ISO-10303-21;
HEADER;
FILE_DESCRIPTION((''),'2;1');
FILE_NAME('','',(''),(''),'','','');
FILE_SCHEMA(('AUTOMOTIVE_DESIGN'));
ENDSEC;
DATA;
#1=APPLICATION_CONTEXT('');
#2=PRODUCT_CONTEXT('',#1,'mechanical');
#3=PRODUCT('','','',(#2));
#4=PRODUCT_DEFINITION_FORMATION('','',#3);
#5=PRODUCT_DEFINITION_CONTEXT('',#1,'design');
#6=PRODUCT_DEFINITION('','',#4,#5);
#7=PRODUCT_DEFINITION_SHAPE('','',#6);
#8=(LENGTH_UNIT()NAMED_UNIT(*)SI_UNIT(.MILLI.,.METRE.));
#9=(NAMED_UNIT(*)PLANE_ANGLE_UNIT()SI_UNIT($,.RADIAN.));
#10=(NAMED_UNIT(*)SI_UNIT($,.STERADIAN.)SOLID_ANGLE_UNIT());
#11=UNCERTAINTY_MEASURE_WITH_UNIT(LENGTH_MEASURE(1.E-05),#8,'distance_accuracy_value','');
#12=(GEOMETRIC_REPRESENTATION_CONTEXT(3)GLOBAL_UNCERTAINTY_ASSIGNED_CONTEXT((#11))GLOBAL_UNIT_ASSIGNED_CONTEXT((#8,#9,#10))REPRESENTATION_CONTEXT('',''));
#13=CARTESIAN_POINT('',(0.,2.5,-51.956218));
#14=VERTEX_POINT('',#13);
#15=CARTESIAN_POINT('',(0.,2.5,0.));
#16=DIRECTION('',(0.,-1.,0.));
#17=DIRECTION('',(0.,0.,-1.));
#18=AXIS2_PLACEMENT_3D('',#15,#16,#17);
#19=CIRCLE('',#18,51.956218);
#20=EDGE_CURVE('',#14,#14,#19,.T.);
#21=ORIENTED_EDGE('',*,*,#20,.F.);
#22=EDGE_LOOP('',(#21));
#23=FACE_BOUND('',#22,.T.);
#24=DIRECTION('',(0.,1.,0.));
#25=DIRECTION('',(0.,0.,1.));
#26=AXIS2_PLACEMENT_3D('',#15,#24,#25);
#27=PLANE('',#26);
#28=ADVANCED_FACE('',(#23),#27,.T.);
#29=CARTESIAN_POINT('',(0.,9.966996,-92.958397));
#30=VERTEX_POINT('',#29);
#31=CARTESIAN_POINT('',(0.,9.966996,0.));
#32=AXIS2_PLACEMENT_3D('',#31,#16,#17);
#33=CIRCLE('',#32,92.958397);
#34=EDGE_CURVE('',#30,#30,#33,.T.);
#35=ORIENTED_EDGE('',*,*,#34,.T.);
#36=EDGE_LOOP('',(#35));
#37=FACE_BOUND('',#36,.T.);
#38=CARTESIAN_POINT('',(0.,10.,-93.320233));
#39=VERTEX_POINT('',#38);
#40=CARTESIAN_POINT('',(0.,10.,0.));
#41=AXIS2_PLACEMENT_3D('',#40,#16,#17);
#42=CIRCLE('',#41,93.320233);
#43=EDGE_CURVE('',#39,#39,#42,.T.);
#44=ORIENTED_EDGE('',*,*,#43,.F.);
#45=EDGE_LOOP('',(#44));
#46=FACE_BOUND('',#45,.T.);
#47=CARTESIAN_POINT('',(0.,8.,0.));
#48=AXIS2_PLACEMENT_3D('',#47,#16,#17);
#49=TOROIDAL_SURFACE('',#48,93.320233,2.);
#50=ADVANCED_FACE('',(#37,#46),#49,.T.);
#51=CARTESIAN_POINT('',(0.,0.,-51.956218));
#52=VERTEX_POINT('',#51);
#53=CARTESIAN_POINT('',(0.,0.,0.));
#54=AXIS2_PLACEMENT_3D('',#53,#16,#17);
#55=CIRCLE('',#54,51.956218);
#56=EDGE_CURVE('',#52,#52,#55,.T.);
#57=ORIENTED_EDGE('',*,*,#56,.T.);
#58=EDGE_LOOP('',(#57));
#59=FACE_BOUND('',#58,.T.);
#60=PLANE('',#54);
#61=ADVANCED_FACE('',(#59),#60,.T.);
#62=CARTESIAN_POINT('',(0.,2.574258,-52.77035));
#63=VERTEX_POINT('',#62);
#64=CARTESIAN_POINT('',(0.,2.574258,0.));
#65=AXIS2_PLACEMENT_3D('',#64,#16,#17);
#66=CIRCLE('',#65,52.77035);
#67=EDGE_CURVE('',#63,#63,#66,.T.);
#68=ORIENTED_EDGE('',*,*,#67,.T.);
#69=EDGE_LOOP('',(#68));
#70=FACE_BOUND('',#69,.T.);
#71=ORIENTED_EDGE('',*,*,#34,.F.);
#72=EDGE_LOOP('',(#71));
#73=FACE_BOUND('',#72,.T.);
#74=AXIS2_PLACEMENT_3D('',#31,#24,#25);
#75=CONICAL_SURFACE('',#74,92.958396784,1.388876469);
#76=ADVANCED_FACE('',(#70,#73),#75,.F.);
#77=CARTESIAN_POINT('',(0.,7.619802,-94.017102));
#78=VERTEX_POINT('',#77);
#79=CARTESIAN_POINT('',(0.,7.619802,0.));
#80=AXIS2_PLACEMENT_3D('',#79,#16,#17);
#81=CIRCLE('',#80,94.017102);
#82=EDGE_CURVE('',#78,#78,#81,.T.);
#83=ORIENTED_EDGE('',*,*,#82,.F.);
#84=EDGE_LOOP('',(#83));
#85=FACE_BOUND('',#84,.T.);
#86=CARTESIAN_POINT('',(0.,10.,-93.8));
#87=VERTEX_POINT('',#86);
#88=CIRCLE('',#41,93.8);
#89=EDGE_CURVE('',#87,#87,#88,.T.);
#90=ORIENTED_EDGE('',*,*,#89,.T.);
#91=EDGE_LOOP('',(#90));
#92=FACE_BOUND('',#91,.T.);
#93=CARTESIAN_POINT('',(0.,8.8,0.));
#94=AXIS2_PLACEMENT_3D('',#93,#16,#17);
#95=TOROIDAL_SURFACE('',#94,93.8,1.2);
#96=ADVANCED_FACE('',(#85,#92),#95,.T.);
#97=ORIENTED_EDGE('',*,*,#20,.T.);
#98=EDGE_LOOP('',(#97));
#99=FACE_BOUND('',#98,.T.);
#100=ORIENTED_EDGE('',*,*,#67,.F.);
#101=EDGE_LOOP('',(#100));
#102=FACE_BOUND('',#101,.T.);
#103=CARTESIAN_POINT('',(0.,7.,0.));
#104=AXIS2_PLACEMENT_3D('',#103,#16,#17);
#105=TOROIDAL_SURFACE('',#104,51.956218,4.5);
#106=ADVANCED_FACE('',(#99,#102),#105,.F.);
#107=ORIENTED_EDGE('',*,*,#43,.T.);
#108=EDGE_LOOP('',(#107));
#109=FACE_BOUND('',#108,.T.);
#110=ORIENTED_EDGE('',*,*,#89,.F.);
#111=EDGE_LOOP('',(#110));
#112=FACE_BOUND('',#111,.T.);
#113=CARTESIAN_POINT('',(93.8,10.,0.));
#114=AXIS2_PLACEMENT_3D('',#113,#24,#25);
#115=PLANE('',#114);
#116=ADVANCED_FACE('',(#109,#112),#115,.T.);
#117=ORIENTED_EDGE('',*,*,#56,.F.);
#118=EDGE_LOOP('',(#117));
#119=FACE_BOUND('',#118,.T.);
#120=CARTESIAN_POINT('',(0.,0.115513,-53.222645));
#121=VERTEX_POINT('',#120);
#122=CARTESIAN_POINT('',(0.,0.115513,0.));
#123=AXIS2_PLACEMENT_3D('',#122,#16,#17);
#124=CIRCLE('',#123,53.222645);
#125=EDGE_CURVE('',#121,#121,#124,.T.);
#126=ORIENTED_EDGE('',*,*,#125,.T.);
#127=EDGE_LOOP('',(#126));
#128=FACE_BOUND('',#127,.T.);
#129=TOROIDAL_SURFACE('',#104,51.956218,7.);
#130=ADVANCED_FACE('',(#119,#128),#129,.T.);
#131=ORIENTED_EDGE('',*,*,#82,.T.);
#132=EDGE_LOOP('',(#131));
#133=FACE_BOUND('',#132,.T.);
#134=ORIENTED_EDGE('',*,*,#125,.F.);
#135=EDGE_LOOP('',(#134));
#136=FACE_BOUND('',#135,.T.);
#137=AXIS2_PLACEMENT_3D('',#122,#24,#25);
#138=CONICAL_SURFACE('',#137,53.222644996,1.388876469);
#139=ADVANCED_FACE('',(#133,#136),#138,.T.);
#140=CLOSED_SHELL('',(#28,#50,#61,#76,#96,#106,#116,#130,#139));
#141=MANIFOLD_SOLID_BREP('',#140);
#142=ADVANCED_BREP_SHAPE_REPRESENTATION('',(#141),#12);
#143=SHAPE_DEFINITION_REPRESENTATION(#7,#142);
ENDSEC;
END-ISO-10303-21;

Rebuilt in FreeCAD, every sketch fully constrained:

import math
import FreeCAD as App
import Part
import Sketcher

V = App.Vector
Q = App.Units.Quantity

doc = App.newDocument("Part")
body = doc.addObject("PartDesign::Body", "Body")

# Sketch on XY plane
sketch1 = body.newObject("Sketcher::SketchObject", "Sketch")
sketch1.AttachmentSupport = (doc.getObject("XY_Plane"), [""])
sketch1.MapMode = "FlatFace"
sketch1.addGeometry([
    Part.LineSegment(V(0, 0, 0), V(51.96, 0, 0)),  # 0
    Part.ArcOfCircle(Part.Circle(V(51.96, 7, 0), V(0, 0, 1), 7), math.radians(-90), math.radians(-79.58)),  # 1
    Part.LineSegment(V(53.22, 0.12, 0), V(94.02, 7.62, 0)),  # 2
    Part.ArcOfCircle(Part.Circle(V(93.8, 8.8, 0), V(0, 0, 1), 1.2), math.radians(-80), math.radians(90)),  # 3
    Part.LineSegment(V(93.8, 10, 0), V(93.32, 10, 0)),  # 4
    Part.ArcOfCircle(Part.Circle(V(93.32, 8, 0), V(0, 0, 1), 2), math.radians(90), math.radians(100.42)),  # 5
    Part.LineSegment(V(92.96, 9.97, 0), V(52.77, 2.57, 0)),  # 6
    Part.ArcOfCircle(Part.Circle(V(51.96, 7, 0), V(0, 0, 1), 4.5), math.radians(-90), math.radians(-79.58)),  # 7
    Part.LineSegment(V(51.96, 2.5, 0), V(0, 2.5, 0)),  # 8
    Part.LineSegment(V(0, 2.5, 0), V(0, 0, 0)),  # 9
], False)
sketch1.addConstraint([
    Sketcher.Constraint("Tangent", 0, 2, 1, 1),
    Sketcher.Constraint("Tangent", 1, 2, 2, 1),
    Sketcher.Constraint("Tangent", 2, 2, 3, 1),
    Sketcher.Constraint("Tangent", 3, 2, 4, 1),
    Sketcher.Constraint("Tangent", 4, 2, 5, 1),
    Sketcher.Constraint("Tangent", 5, 2, 6, 1),
    Sketcher.Constraint("Tangent", 6, 2, 7, 2),
    Sketcher.Constraint("Tangent", 7, 1, 8, 1),
    Sketcher.Constraint("Coincident", 8, 2, 9, 1),
    Sketcher.Constraint("Coincident", 9, 2, 0, 1),
    Sketcher.Constraint("Horizontal", 0),
    Sketcher.Constraint("Horizontal", 4),
    Sketcher.Constraint("Horizontal", 8),
    Sketcher.Constraint("Vertical", 9),
    Sketcher.Constraint("Coincident", 9, 2, -1, 1),
    Sketcher.Constraint("Coincident", 7, 3, 1, 3),
    Sketcher.Constraint("Parallel", 2, 6),
    Sketcher.Constraint("Radius", 1, Q("7 mm")),
    Sketcher.Constraint("Radius", 5, Q("2 mm")),
    Sketcher.Constraint("Radius", 3, Q("1.2 mm")),
    Sketcher.Constraint("Radius", 7, Q("4.5 mm")),
    Sketcher.Constraint("DistanceY", -1, 1, 5, 3, Q("8 mm")),
    Sketcher.Constraint("DistanceX", -1, 1, 3, 3, Q("93.8 mm")),
    Sketcher.Constraint("DistanceX", 0, 1, 0, 2, Q("51.956218 mm")),
])
revolution = body.newObject("PartDesign::Revolution", "Revolution")
revolution.Profile = sketch1
revolution.ReferenceAxis = (sketch1, ["V_Axis"])
revolution.Angle = 360

doc.recompute()
